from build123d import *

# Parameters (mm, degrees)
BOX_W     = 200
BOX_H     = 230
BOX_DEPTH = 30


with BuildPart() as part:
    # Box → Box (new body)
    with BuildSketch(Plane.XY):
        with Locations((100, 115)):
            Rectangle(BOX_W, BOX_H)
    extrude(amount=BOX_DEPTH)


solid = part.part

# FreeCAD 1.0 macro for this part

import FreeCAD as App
import Part
import Sketcher
from FreeCAD import Vector


def add_polygon(sketch, points):
    """Adds a closed chain of lines whose ends are joined by coincident constraints."""
    first, n = sketch.GeometryCount, len(points)
    for a, b in zip(points, points[1:] + points[:1]):
        sketch.addGeometry(Part.LineSegment(App.Vector(*a, 0), App.Vector(*b, 0)), False)
    for i in range(n):
        sketch.addConstraint(Sketcher.Constraint("Coincident", first + i, 2, first + (i + 1) % n, 1))

doc = App.newDocument("Part")
body = doc.addObject("PartDesign::Body", "Body")

# Sketch on XY plane
sketch1 = body.newObject("Sketcher::SketchObject", "Sketch")
sketch1.AttachmentSupport = (doc.getObject("XY_Plane"), [""])
sketch1.MapMode = "FlatFace"
add_polygon(sketch1, [(0, 230), (0, 0), (200, 0), (200, 230)])  # lines 0-3
sketch1.addConstraint([
    Sketcher.Constraint("Vertical", 0),
    Sketcher.Constraint("Horizontal", 1),
    Sketcher.Constraint("Vertical", 2),
    Sketcher.Constraint("Horizontal", 3),
    Sketcher.Constraint("Coincident", 0, 2, -1, 1),
    Sketcher.Constraint("DistanceX", 1, 1, 1, 2, 200.0),
    Sketcher.Constraint("DistanceY", 0, 2, 0, 1, 230.0),
])
pad1 = body.newObject("PartDesign::Pad", "Pad")
pad1.Profile = sketch1
pad1.Length = 30

doc.recompute()
